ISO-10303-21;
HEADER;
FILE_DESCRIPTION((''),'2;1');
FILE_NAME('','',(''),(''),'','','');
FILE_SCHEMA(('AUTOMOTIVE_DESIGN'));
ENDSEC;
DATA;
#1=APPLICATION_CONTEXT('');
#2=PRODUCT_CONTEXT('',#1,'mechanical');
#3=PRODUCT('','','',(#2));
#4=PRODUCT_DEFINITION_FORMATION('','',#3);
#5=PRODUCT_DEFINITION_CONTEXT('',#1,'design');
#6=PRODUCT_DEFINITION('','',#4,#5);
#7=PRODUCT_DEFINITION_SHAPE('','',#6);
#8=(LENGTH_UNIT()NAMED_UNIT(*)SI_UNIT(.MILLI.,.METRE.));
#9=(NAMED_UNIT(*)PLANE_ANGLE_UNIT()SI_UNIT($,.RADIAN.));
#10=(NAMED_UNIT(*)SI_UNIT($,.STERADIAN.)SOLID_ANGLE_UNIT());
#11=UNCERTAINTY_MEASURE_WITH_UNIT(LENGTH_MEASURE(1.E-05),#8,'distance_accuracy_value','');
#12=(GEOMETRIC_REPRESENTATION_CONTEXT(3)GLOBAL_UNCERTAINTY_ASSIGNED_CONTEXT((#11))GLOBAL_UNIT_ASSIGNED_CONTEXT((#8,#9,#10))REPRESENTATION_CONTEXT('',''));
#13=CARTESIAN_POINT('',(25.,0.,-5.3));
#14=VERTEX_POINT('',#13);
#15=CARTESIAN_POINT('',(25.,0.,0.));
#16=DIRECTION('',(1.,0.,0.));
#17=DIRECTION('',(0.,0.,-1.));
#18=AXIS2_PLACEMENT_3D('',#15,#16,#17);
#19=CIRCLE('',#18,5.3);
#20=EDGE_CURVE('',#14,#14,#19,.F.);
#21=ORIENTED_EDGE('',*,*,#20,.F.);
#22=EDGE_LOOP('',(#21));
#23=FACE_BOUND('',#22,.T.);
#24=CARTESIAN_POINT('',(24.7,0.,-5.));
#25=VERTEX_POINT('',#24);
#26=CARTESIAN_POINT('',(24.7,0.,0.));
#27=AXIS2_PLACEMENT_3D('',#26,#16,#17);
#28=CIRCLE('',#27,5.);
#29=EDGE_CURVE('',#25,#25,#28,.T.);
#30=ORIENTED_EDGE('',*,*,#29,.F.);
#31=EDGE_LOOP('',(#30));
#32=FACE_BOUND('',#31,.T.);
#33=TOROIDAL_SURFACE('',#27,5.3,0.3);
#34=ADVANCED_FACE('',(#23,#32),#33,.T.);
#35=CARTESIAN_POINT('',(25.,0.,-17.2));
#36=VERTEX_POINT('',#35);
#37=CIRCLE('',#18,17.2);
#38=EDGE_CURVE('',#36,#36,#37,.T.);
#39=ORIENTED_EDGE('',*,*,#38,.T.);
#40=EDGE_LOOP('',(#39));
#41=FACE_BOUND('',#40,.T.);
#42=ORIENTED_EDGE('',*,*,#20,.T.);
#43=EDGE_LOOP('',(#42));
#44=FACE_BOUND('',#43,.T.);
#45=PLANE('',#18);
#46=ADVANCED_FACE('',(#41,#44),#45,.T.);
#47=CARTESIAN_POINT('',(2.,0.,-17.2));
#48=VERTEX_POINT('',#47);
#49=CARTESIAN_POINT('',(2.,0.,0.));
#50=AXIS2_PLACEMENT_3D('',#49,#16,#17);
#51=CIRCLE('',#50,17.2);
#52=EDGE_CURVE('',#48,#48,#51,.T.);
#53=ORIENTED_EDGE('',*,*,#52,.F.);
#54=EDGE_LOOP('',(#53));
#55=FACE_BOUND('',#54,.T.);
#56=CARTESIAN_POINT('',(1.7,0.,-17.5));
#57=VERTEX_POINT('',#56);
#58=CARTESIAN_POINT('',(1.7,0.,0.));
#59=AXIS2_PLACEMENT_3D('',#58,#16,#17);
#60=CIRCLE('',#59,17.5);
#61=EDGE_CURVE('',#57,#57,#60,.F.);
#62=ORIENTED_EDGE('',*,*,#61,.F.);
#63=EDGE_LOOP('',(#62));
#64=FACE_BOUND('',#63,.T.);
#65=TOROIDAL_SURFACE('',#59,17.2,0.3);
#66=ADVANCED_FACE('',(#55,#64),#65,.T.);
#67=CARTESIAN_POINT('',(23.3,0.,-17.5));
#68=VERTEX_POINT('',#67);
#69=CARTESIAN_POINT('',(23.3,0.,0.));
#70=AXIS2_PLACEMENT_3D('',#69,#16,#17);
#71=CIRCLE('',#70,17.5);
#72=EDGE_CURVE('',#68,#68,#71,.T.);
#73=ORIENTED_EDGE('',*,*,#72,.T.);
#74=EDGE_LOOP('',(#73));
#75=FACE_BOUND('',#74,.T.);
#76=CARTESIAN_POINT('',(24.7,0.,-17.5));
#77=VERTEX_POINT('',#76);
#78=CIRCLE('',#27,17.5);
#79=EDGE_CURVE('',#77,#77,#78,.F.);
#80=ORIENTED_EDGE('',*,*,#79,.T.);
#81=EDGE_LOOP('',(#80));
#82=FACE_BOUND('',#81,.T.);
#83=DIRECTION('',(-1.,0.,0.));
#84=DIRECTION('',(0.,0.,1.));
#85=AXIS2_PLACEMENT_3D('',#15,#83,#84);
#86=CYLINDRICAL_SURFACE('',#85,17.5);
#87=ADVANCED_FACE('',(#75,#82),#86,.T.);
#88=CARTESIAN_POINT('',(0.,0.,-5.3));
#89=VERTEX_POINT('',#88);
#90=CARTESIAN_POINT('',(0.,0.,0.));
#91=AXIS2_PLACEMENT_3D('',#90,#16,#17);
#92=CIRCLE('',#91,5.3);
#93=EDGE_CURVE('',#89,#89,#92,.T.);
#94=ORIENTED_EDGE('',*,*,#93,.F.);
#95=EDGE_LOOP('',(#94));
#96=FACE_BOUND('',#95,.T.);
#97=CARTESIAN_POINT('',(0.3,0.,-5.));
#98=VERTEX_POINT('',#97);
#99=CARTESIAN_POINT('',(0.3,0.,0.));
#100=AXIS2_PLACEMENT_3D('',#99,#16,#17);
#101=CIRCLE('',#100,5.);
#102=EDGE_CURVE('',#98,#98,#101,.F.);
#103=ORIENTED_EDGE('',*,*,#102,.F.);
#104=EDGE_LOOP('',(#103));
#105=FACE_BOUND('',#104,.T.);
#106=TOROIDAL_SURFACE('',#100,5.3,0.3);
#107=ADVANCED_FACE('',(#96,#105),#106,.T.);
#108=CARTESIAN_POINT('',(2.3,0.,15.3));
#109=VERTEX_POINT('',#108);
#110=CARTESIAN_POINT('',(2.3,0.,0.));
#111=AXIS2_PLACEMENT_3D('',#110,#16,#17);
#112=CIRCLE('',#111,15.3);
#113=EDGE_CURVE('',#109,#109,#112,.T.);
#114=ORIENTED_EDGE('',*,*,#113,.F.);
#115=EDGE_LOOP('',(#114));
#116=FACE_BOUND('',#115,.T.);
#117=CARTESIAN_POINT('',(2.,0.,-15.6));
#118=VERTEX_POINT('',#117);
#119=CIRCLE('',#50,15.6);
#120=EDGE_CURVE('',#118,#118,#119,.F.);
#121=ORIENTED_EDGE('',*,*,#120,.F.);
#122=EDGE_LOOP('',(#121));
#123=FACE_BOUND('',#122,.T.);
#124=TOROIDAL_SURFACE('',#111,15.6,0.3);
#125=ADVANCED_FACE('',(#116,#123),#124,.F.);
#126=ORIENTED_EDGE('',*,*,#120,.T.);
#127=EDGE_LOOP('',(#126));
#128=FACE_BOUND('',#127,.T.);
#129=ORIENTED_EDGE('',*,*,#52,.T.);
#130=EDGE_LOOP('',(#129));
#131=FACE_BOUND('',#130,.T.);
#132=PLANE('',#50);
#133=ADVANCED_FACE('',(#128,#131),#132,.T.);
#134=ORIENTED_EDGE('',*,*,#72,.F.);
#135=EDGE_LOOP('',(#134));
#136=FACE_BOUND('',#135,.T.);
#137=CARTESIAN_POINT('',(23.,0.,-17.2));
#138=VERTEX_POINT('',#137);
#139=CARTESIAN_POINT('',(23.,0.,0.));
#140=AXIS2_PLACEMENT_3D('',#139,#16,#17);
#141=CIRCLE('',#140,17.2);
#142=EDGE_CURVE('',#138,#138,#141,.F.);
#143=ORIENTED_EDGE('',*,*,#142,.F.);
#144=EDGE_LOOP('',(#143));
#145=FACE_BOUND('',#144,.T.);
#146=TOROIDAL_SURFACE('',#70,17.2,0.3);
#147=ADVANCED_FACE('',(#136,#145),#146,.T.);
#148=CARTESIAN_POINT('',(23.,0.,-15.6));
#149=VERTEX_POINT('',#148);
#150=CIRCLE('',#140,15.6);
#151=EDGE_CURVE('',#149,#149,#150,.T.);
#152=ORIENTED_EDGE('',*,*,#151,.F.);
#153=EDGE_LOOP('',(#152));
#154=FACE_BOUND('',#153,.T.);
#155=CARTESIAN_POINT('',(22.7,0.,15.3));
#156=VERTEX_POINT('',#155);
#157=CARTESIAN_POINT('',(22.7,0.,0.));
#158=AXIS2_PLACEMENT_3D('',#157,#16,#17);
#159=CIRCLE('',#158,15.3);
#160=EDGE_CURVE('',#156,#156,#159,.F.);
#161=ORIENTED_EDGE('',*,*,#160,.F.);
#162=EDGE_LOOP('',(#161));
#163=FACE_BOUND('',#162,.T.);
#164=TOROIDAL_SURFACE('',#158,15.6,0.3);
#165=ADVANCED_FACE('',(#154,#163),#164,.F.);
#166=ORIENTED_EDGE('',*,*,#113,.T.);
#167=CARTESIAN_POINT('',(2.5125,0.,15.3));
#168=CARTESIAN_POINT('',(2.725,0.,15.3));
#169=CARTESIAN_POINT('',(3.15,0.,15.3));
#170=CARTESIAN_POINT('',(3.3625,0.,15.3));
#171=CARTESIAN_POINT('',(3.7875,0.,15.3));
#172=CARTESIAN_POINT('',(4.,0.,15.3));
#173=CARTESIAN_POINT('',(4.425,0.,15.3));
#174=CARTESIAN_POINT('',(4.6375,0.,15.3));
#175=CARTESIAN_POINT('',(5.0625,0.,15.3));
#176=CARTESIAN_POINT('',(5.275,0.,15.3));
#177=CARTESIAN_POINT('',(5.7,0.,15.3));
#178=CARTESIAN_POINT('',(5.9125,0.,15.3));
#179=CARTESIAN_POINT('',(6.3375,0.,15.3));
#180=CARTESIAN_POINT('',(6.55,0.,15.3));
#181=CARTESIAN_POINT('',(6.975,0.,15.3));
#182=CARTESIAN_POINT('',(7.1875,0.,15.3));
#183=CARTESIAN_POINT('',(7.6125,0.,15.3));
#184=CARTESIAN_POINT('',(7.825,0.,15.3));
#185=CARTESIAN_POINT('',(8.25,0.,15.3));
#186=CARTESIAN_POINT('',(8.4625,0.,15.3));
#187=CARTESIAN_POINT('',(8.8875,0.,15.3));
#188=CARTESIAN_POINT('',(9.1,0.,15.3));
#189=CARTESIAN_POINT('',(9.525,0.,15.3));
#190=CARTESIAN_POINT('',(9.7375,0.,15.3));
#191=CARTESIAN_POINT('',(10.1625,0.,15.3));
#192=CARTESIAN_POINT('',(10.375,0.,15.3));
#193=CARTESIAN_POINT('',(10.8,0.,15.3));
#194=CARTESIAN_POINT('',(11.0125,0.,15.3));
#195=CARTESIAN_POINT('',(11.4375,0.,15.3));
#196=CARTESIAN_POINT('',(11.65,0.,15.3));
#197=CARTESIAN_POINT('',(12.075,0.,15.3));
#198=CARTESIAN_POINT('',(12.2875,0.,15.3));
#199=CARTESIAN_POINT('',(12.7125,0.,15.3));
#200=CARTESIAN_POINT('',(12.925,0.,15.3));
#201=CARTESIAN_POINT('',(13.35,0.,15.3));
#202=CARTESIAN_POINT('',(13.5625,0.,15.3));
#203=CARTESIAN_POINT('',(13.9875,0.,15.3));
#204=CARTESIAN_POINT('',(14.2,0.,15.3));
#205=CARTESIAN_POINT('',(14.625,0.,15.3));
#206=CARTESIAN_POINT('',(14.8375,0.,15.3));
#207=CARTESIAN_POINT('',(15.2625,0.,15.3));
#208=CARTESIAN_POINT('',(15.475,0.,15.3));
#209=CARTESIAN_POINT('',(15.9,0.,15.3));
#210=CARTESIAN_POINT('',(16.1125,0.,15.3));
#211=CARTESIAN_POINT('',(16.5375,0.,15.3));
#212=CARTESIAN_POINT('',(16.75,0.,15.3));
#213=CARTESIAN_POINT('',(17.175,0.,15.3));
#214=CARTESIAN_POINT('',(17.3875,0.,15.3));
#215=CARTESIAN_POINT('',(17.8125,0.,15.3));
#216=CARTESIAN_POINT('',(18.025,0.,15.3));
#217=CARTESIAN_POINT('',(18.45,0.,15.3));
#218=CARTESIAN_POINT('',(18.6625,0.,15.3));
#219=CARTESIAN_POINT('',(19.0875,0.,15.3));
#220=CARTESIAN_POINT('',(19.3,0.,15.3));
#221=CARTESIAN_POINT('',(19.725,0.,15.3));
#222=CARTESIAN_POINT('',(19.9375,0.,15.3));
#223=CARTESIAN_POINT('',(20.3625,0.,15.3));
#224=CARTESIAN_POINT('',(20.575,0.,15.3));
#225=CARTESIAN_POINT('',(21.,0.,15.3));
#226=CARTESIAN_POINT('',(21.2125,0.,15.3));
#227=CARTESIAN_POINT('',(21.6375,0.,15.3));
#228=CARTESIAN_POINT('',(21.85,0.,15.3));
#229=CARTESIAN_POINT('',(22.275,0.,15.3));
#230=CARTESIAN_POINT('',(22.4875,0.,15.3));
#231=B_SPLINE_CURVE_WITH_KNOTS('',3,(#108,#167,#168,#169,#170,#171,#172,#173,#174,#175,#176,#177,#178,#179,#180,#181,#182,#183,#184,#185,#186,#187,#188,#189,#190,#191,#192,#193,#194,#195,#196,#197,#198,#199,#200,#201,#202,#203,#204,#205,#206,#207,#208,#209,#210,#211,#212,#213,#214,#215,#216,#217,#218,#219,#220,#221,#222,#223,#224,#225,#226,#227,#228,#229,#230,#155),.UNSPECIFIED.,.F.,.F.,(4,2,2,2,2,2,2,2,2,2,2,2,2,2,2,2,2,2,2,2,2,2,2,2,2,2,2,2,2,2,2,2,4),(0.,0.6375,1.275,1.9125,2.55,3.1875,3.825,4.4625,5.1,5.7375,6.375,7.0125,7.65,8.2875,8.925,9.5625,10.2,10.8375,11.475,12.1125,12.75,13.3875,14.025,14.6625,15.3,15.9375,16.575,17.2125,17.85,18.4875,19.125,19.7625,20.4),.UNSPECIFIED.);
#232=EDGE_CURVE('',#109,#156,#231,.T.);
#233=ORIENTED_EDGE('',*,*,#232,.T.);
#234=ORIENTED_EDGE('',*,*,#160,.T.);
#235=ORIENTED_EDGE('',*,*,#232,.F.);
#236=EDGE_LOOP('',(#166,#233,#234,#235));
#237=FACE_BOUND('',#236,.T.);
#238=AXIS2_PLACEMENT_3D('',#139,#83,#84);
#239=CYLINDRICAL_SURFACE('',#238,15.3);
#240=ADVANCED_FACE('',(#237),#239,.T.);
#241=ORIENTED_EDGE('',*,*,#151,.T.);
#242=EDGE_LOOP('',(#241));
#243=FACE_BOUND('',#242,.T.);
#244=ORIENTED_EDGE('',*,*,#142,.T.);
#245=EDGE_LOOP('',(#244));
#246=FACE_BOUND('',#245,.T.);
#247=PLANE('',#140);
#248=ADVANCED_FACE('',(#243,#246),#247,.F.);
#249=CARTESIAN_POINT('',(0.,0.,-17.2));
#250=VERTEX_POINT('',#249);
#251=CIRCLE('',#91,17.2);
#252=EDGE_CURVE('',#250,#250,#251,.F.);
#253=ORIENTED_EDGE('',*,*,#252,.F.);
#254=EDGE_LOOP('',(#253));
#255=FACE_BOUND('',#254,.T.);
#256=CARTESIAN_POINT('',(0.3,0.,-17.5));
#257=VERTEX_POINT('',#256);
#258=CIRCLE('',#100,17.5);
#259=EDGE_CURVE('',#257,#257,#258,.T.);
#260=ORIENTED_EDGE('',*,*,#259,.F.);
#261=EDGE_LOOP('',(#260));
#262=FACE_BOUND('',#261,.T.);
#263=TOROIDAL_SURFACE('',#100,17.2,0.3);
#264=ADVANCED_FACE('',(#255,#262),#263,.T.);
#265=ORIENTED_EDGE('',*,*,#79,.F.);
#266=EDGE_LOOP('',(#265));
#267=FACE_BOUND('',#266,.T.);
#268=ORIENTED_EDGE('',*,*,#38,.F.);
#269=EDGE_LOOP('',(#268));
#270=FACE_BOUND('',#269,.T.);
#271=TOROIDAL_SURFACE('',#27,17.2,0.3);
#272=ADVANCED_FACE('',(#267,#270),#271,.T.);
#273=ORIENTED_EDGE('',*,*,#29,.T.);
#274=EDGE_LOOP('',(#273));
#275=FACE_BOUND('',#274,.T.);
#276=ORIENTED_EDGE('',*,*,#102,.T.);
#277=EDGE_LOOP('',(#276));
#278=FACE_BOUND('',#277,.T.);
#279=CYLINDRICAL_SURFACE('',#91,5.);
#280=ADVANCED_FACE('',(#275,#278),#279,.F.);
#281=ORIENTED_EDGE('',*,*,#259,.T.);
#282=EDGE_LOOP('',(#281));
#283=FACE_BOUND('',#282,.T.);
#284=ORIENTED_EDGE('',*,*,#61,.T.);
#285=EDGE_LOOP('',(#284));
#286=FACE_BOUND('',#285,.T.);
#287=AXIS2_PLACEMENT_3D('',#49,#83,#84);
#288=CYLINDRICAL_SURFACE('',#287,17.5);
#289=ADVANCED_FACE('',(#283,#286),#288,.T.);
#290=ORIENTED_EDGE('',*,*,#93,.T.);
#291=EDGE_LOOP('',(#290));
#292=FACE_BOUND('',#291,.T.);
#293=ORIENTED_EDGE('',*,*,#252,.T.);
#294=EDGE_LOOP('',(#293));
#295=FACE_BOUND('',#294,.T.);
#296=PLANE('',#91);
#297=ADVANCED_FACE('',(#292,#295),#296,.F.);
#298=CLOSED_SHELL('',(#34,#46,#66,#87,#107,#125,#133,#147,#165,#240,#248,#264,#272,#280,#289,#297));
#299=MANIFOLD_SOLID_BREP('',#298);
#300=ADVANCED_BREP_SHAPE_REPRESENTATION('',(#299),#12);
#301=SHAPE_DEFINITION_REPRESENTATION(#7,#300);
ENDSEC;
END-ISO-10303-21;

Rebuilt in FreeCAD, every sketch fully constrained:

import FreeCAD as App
import Part
import Sketcher
from FreeCAD import Vector


def edges_at(feature, points):
    """Names of the edges that pass closest to the given points."""
    edges = feature.Shape.Edges
    near = lambda p: min(range(len(edges)), key=lambda i: edges[i].distToShape(Part.Vertex(*p))[0])
    return sorted({f"Edge{near(p) + 1}" for p in points})

doc = App.newDocument("Part")
body = doc.addObject("PartDesign::Body", "Body")

# Sketch on YZ plane
sketch1 = doc.addObject("Sketcher::SketchObject", "Sketch")
body.addObject(sketch1)
sketch1.AttachmentSupport = (doc.YZ_Plane, [""])
sketch1.MapMode = "FlatFace"
sketch1.addGeometry(Part.Circle(Vector(0, 0, 0), Vector(0, 0, 1), 18), False)
sketch1.addConstraint([
    Sketcher.Constraint("Coincident", 0, 3, -1, 1),
    Sketcher.Constraint("Diameter", 0, 35.0),
])
pad1 = doc.addObject("PartDesign::Pad", "Pad")
body.addObject(pad1)
pad1.Profile = sketch1
pad1.Length = 2

# Sketch on YZ plane
sketch2 = doc.addObject("Sketcher::SketchObject", "Sketch001")
body.addObject(sketch2)
sketch2.AttachmentSupport = (doc.YZ_Plane, [""])
sketch2.MapMode = "FlatFace"
sketch2.AttachmentOffset = App.Placement(Vector(0, 0, 2), App.Rotation())
sketch2.addGeometry(Part.Circle(Vector(0, 0, 0), Vector(0, 0, 1), 15), False)
sketch2.addConstraint([
    Sketcher.Constraint("Coincident", 0, 3, -1, 1),
    Sketcher.Constraint("Diameter", 0, 30.6),
])
pad2 = doc.addObject("PartDesign::Pad", "Pad001")
body.addObject(pad2)
pad2.Profile = sketch2
pad2.Length = 21

# Sketch on YZ plane
sketch3 = doc.addObject("Sketcher::SketchObject", "Sketch002")
body.addObject(sketch3)
sketch3.AttachmentSupport = (doc.YZ_Plane, [""])
sketch3.MapMode = "FlatFace"
sketch3.AttachmentOffset = App.Placement(Vector(0, 0, 23), App.Rotation())
sketch3.addGeometry(Part.Circle(Vector(0, 0, 0), Vector(0, 0, 1), 18), False)
sketch3.addConstraint([
    Sketcher.Constraint("Coincident", 0, 3, -1, 1),
    Sketcher.Constraint("Diameter", 0, 35.0),
])
pad3 = doc.addObject("PartDesign::Pad", "Pad002")
body.addObject(pad3)
pad3.Profile = sketch3
pad3.Length = 2

# Sketch on YZ plane
sketch4 = doc.addObject("Sketcher::SketchObject", "Sketch003")
body.addObject(sketch4)
sketch4.AttachmentSupport = (doc.YZ_Plane, [""])
sketch4.MapMode = "FlatFace"
sketch4.AttachmentOffset = App.Placement(Vector(0, 0, 25), App.Rotation())
sketch4.addGeometry(Part.Circle(Vector(0, 0, 0), Vector(0, 0, 1), 5), False)
sketch4.addConstraint([
    Sketcher.Constraint("Coincident", 0, 3, -1, 1),
    Sketcher.Constraint("Diameter", 0, 10.0),
])
pocket1 = doc.addObject("PartDesign::Pocket", "Pocket")
body.addObject(pocket1)
pocket1.Profile = sketch4
pocket1.Type = "ThroughAll"
doc.recompute()

fillet = doc.addObject("PartDesign::Fillet", "Fillet")
body.addObject(fillet)
fillet.Base = (pocket1, edges_at(pocket1, [
    (25, 0, 17.5),
    (0, 0, 5),
    (25, 0, 5),
    (0, 0, 17.5),
    (2, 0, 17.5),
    (2, 0, -15.3),
    (23, 0, -15.3),
    (23, 0, 17.5),
]))
fillet.Radius = 0.3

doc.recompute()
